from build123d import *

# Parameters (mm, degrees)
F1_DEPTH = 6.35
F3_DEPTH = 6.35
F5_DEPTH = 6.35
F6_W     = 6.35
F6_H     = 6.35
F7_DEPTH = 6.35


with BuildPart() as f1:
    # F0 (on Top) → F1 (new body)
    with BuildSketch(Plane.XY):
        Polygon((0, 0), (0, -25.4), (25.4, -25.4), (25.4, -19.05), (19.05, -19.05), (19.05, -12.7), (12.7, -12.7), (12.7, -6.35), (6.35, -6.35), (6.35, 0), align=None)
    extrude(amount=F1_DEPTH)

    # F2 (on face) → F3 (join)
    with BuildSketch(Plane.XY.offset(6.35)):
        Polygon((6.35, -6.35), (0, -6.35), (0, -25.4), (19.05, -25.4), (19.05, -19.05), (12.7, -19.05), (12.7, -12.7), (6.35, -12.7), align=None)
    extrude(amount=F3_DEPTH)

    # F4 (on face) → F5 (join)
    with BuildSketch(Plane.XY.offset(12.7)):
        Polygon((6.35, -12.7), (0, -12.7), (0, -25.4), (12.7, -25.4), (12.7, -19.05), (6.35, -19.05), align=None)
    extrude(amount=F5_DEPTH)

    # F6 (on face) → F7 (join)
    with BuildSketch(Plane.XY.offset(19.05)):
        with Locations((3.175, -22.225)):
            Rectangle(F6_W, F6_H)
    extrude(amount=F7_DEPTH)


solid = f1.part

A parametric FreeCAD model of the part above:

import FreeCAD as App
import Part
import Sketcher

V = App.Vector
Q = App.Units.Quantity

doc = App.newDocument("Part")
body = doc.addObject("PartDesign::Body", "Body")

sketch1 = body.newObject("Sketcher::SketchObject", "Sketch")
sketch1.AttachmentSupport = (doc.getObject("XY_Plane"), [""])
sketch1.MapMode = "FlatFace"
sketch1.addGeometry(Part.LineSegment(V(0, 0, 0), V(0, -25, 0)), False)
sketch1.addGeometry(Part.LineSegment(V(0, -25, 0), V(25, -25, 0)), False)
sketch1.addGeometry(Part.LineSegment(V(25, -25, 0), V(25, -19, 0)), False)
sketch1.addGeometry(Part.LineSegment(V(25, -19, 0), V(19, -19, 0)), False)
sketch1.addGeometry(Part.LineSegment(V(19, -19, 0), V(19, -13, 0)), False)
sketch1.addGeometry(Part.LineSegment(V(19, -13, 0), V(13, -13, 0)), False)
sketch1.addGeometry(Part.LineSegment(V(13, -13, 0), V(13, -6, 0)), False)
sketch1.addGeometry(Part.LineSegment(V(13, -6, 0), V(6, -6, 0)), False)
sketch1.addGeometry(Part.LineSegment(V(6, -6, 0), V(6, 0, 0)), False)
sketch1.addGeometry(Part.LineSegment(V(6, 0, 0), V(0, 0, 0)), False)
sketch1.addConstraint(Sketcher.Constraint("Coincident", 0, 2, 1, 1))
sketch1.addConstraint(Sketcher.Constraint("Coincident", 1, 2, 2, 1))
sketch1.addConstraint(Sketcher.Constraint("Coincident", 2, 2, 3, 1))
sketch1.addConstraint(Sketcher.Constraint("Coincident", 3, 2, 4, 1))
sketch1.addConstraint(Sketcher.Constraint("Coincident", 4, 2, 5, 1))
sketch1.addConstraint(Sketcher.Constraint("Coincident", 5, 2, 6, 1))
sketch1.addConstraint(Sketcher.Constraint("Coincident", 6, 2, 7, 1))
sketch1.addConstraint(Sketcher.Constraint("Coincident", 7, 2, 8, 1))
sketch1.addConstraint(Sketcher.Constraint("Coincident", 8, 2, 9, 1))
sketch1.addConstraint(Sketcher.Constraint("Coincident", 9, 2, 0, 1))
sketch1.addConstraint(Sketcher.Constraint("Vertical", 0))
sketch1.addConstraint(Sketcher.Constraint("Horizontal", 1))
sketch1.addConstraint(Sketcher.Constraint("Vertical", 2))
sketch1.addConstraint(Sketcher.Constraint("Horizontal", 3))
sketch1.addConstraint(Sketcher.Constraint("Vertical", 4))
sketch1.addConstraint(Sketcher.Constraint("Horizontal", 5))
sketch1.addConstraint(Sketcher.Constraint("Vertical", 6))
sketch1.addConstraint(Sketcher.Constraint("Horizontal", 7))
sketch1.addConstraint(Sketcher.Constraint("Vertical", 8))
sketch1.addConstraint(Sketcher.Constraint("Horizontal", 9))
sketch1.addConstraint(Sketcher.Constraint("Coincident", 9, 2, -1, 1))
sketch1.addConstraint(Sketcher.Constraint("Equal", 3, 5))
sketch1.addConstraint(Sketcher.Constraint("Equal", 5, 7))
sketch1.addConstraint(Sketcher.Constraint("Equal", 7, 9))
sketch1.addConstraint(Sketcher.Constraint("Equal", 1, 0))
sketch1.addConstraint(Sketcher.Constraint("Equal", 9, 2))
sketch1.addConstraint(Sketcher.Constraint("Equal", 2, 4))
sketch1.addConstraint(Sketcher.Constraint("Equal", 4, 6))
sketch1.addConstraint(Sketcher.Constraint("DistanceX", 1, 1, 1, 2, Q("1 in")))
pad1 = body.newObject("PartDesign::Pad", "Pad")
pad1.Profile = sketch1
pad1.Length = Q("0.25 in")

sketch2 = body.newObject("Sketcher::SketchObject", "Sketch001")
sketch2.AttachmentSupport = (doc.getObject("XY_Plane"), [""])
sketch2.MapMode = "FlatFace"
sketch2.AttachmentOffset = App.Placement(V(0, 0, 0.25 * 25.4), App.Rotation())
sketch2.addGeometry(Part.LineSegment(V(6, -6, 0), V(0, -6, 0)), False)
sketch2.addGeometry(Part.LineSegment(V(0, -6, 0), V(0, -25, 0)), False)
sketch2.addGeometry(Part.LineSegment(V(0, -25, 0), V(19, -25, 0)), False)
sketch2.addGeometry(Part.LineSegment(V(19, -25, 0), V(19, -19, 0)), False)
sketch2.addGeometry(Part.LineSegment(V(19, -19, 0), V(13, -19, 0)), False)
sketch2.addGeometry(Part.LineSegment(V(13, -19, 0), V(13, -13, 0)), False)
sketch2.addGeometry(Part.LineSegment(V(13, -13, 0), V(6, -13, 0)), False)
sketch2.addGeometry(Part.LineSegment(V(6, -13, 0), V(6, -6, 0)), False)
sketch2.addConstraint(Sketcher.Constraint("Coincident", 0, 2, 1, 1))
sketch2.addConstraint(Sketcher.Constraint("Coincident", 1, 2, 2, 1))
sketch2.addConstraint(Sketcher.Constraint("Coincident", 2, 2, 3, 1))
sketch2.addConstraint(Sketcher.Constraint("Coincident", 3, 2, 4, 1))
sketch2.addConstraint(Sketcher.Constraint("Coincident", 4, 2, 5, 1))
sketch2.addConstraint(Sketcher.Constraint("Coincident", 5, 2, 6, 1))
sketch2.addConstraint(Sketcher.Constraint("Coincident", 6, 2, 7, 1))
sketch2.addConstraint(Sketcher.Constraint("Coincident", 7, 2, 0, 1))
sketch2.addConstraint(Sketcher.Constraint("Horizontal", 0))
sketch2.addConstraint(Sketcher.Constraint("Vertical", 1))
sketch2.addConstraint(Sketcher.Constraint("Horizontal", 2))
sketch2.addConstraint(Sketcher.Constraint("Vertical", 3))
sketch2.addConstraint(Sketcher.Constraint("Horizontal", 4))
sketch2.addConstraint(Sketcher.Constraint("Vertical", 5))
sketch2.addConstraint(Sketcher.Constraint("Horizontal", 6))
sketch2.addConstraint(Sketcher.Constraint("Vertical", 7))
sketch2.addConstraint(Sketcher.Constraint("PointOnObject", 0, 2, -2))
sketch2.addConstraint(Sketcher.Constraint("Equal", 0, 4))
sketch2.addConstraint(Sketcher.Constraint("Equal", 4, 6))
sketch2.addConstraint(Sketcher.Constraint("Equal", 2, 1))
sketch2.addConstraint(Sketcher.Constraint("Equal", 6, 3))
sketch2.addConstraint(Sketcher.Constraint("Equal", 3, 5))
sketch2.addConstraint(Sketcher.Constraint("DistanceY", 1, 2, -1, 1, Q("1 in")))
sketch2.addConstraint(Sketcher.Constraint("DistanceX", 0, 2, 0, 1, Q("0.25 in")))
pad2 = body.newObject("PartDesign::Pad", "Pad001")
pad2.Profile = sketch2
pad2.Length = Q("0.25 in")

sketch3 = body.newObject("Sketcher::SketchObject", "Sketch002")
sketch3.AttachmentSupport = (doc.getObject("XY_Plane"), [""])
sketch3.MapMode = "FlatFace"
sketch3.AttachmentOffset = App.Placement(V(0, 0, 0.5 * 25.4), App.Rotation())
sketch3.addGeometry(Part.LineSegment(V(6, -13, 0), V(0, -13, 0)), False)
sketch3.addGeometry(Part.LineSegment(V(0, -13, 0), V(0, -25, 0)), False)
sketch3.addGeometry(Part.LineSegment(V(0, -25, 0), V(13, -25, 0)), False)
sketch3.addGeometry(Part.LineSegment(V(13, -25, 0), V(13, -19, 0)), False)
sketch3.addGeometry(Part.LineSegment(V(13, -19, 0), V(6, -19, 0)), False)
sketch3.addGeometry(Part.LineSegment(V(6, -19, 0), V(6, -13, 0)), False)
sketch3.addConstraint(Sketcher.Constraint("Coincident", 0, 2, 1, 1))
sketch3.addConstraint(Sketcher.Constraint("Coincident", 1, 2, 2, 1))
sketch3.addConstraint(Sketcher.Constraint("Coincident", 2, 2, 3, 1))
sketch3.addConstraint(Sketcher.Constraint("Coincident", 3, 2, 4, 1))
sketch3.addConstraint(Sketcher.Constraint("Coincident", 4, 2, 5, 1))
sketch3.addConstraint(Sketcher.Constraint("Coincident", 5, 2, 0, 1))
sketch3.addConstraint(Sketcher.Constraint("Horizontal", 0))
sketch3.addConstraint(Sketcher.Constraint("Vertical", 1))
sketch3.addConstraint(Sketcher.Constraint("Horizontal", 2))
sketch3.addConstraint(Sketcher.Constraint("Vertical", 3))
sketch3.addConstraint(Sketcher.Constraint("Horizontal", 4))
sketch3.addConstraint(Sketcher.Constraint("Vertical", 5))
sketch3.addConstraint(Sketcher.Constraint("PointOnObject", 0, 2, -2))
sketch3.addConstraint(Sketcher.Constraint("Equal", 0, 4))
sketch3.addConstraint(Sketcher.Constraint("Equal", 2, 1))
sketch3.addConstraint(Sketcher.Constraint("Equal", 4, 3))
sketch3.addConstraint(Sketcher.Constraint("DistanceX", 2, 1, 2, 2, Q("0.5 in")))
sketch3.addConstraint(Sketcher.Constraint("DistanceY", 1, 2, -1, 1, Q("1 in")))
pad3 = body.newObject("PartDesign::Pad", "Pad002")
pad3.Profile = sketch3
pad3.Length = Q("0.25 in")

sketch4 = body.newObject("Sketcher::SketchObject", "Sketch003")
sketch4.AttachmentSupport = (doc.getObject("XY_Plane"), [""])
sketch4.MapMode = "FlatFace"
sketch4.AttachmentOffset = App.Placement(V(0, 0, 0.75 * 25.4), App.Rotation())
sketch4.addGeometry(Part.LineSegment(V(0, -19, 0), V(0, -25, 0)), False)
sketch4.addGeometry(Part.LineSegment(V(0, -25, 0), V(6, -25, 0)), False)
sketch4.addGeometry(Part.LineSegment(V(6, -25, 0), V(6, -19, 0)), False)
sketch4.addGeometry(Part.LineSegment(V(6, -19, 0), V(0, -19, 0)), False)
sketch4.addConstraint(Sketcher.Constraint("Coincident", 0, 2, 1, 1))
sketch4.addConstraint(Sketcher.Constraint("Coincident", 1, 2, 2, 1))
sketch4.addConstraint(Sketcher.Constraint("Coincident", 2, 2, 3, 1))
sketch4.addConstraint(Sketcher.Constraint("Coincident", 3, 2, 0, 1))
sketch4.addConstraint(Sketcher.Constraint("Vertical", 0))
sketch4.addConstraint(Sketcher.Constraint("Horizontal", 1))
sketch4.addConstraint(Sketcher.Constraint("Vertical", 2))
sketch4.addConstraint(Sketcher.Constraint("Horizontal", 3))
sketch4.addConstraint(Sketcher.Constraint("PointOnObject", 0, 2, -2))
sketch4.addConstraint(Sketcher.Constraint("Equal", 3, 0))
sketch4.addConstraint(Sketcher.Constraint("DistanceY", 0, 2, -1, 1, Q("1 in")))
sketch4.addConstraint(Sketcher.Constraint("DistanceX", 1, 1, 1, 2, Q("0.25 in")))
pad4 = body.newObject("PartDesign::Pad", "Pad003")
pad4.Profile = sketch4
pad4.Length = Q("0.25 in")

doc.recompute()
